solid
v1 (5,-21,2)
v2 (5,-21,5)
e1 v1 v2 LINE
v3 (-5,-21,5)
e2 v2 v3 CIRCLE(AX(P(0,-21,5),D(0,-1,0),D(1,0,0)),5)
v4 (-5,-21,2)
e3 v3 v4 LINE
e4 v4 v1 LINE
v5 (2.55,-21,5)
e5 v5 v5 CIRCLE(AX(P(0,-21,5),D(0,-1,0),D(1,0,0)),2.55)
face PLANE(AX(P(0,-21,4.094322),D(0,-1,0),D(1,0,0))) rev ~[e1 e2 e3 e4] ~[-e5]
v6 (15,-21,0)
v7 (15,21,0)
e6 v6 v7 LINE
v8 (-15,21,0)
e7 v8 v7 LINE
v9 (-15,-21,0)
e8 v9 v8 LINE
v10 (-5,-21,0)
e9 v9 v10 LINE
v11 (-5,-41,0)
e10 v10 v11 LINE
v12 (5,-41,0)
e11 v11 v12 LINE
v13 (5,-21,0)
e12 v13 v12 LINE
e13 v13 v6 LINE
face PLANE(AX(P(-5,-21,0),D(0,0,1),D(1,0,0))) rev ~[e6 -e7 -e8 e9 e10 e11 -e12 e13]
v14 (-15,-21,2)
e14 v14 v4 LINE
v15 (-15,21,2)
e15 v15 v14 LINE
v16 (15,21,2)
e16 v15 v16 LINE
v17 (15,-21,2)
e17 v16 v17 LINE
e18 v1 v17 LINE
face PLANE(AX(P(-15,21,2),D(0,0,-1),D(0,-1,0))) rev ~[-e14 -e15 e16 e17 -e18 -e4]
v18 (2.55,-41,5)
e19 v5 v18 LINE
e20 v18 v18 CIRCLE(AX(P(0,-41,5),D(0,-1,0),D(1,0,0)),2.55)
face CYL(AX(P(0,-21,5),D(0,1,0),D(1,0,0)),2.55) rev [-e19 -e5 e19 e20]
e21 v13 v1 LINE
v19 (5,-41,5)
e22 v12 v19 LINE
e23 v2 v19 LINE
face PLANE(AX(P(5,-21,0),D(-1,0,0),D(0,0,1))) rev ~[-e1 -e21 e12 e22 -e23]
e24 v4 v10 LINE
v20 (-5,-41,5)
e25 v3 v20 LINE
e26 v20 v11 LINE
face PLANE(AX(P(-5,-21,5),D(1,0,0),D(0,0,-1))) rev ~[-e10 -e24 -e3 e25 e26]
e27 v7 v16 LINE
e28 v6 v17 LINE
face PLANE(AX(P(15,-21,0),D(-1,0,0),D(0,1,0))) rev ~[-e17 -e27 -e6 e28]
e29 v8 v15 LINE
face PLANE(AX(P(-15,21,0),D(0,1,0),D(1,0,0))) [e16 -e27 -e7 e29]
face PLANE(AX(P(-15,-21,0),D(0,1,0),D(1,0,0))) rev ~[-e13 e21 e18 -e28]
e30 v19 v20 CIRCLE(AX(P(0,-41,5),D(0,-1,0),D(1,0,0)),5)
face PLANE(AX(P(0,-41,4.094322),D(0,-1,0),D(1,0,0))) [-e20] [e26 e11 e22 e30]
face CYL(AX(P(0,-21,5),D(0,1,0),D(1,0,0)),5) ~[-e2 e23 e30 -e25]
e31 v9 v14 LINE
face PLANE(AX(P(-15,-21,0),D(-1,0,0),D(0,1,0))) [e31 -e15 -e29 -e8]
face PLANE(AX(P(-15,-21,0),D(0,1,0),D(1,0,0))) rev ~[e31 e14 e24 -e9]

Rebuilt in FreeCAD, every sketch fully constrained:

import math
import FreeCAD as App
import Part
import Sketcher
from FreeCAD import Vector
Q = App.Units.Quantity

doc = App.newDocument("Part")
body = doc.addObject("PartDesign::Body", "Body")

# Sketch on XY plane
sketch1 = body.newObject("Sketcher::SketchObject", "Sketch")
sketch1.AttachmentSupport = (doc.getObject("XY_Plane"), [""])
sketch1.MapMode = "FlatFace"
sketch1.addGeometry([
    Part.LineSegment(Vector(-15, 21, 0), Vector(-15, -21, 0)),
    Part.LineSegment(Vector(-15, -21, 0), Vector(15, -21, 0)),
    Part.LineSegment(Vector(15, -21, 0), Vector(15, 21, 0)),
    Part.LineSegment(Vector(15, 21, 0), Vector(-15, 21, 0)),
], False)
sketch1.addConstraint([
    Sketcher.Constraint("Coincident", 0, 2, 1, 1),
    Sketcher.Constraint("Coincident", 1, 2, 2, 1),
    Sketcher.Constraint("Coincident", 2, 2, 3, 1),
    Sketcher.Constraint("Coincident", 3, 2, 0, 1),
    Sketcher.Constraint("Vertical", 0),
    Sketcher.Constraint("Horizontal", 1),
    Sketcher.Constraint("Vertical", 2),
    Sketcher.Constraint("Horizontal", 3),
    Sketcher.Constraint("Symmetric", 0, 2, 2, 2, -1, 1),
    Sketcher.Constraint("DistanceX", 1, 1, 1, 2, Q("30 mm")),
    Sketcher.Constraint("DistanceY", 0, 2, 0, 1, Q("42 mm")),
])
pad1 = body.newObject("PartDesign::Pad", "Pad")
pad1.Profile = sketch1
pad1.Length = 5

# Sketch on XZ plane
sketch2 = body.newObject("Sketcher::SketchObject", "Sketch001")
sketch2.AttachmentSupport = (doc.getObject("XZ_Plane"), [""])
sketch2.MapMode = "FlatFace"
sketch2.AttachmentOffset = App.Placement(Vector(0, 0, 21), App.Rotation())
sketch2.addGeometry([
    Part.ArcOfCircle(Part.Circle(Vector(0, 5, 0), Vector(0, 0, 1), 5), math.radians(0), math.radians(180)),  # 0
    Part.LineSegment(Vector(-5, 5, 0), Vector(-5, 0, 0)),  # 1
    Part.LineSegment(Vector(-5, 0, 0), Vector(5, 0, 0)),  # 2
    Part.LineSegment(Vector(5, 0, 0), Vector(5, 5, 0)),  # 3
    Part.Circle(Vector(0, 5, 0), Vector(0, 0, 1), 2.5),  # 4
], False)
sketch2.addConstraint([
    Sketcher.Constraint("Tangent", 0, 2, 1, 1),
    Sketcher.Constraint("Coincident", 1, 2, 2, 1),
    Sketcher.Constraint("Coincident", 2, 2, 3, 1),
    Sketcher.Constraint("Tangent", 3, 2, 0, 1),
    Sketcher.Constraint("Vertical", 1),
    Sketcher.Constraint("Horizontal", 2),
    Sketcher.Constraint("Vertical", 3),
    Sketcher.Constraint("Coincident", 4, 3, 0, 3),
    Sketcher.Constraint("Symmetric", 1, 2, 2, 2, -1, 1),
    Sketcher.Constraint("Radius", 0, Q("5 mm")),
    Sketcher.Constraint("Diameter", 4, Q("5.1 mm")),
    Sketcher.Constraint("DistanceY", 1, 2, 1, 1, Q("5 mm")),
])
pad2 = body.newObject("PartDesign::Pad", "Pad001")
pad2.Profile = sketch2
pad2.Length = 20

# Sketch on YZ plane
sketch3 = body.newObject("Sketcher::SketchObject", "Sketch002")
sketch3.AttachmentSupport = (doc.getObject("YZ_Plane"), [""])
sketch3.MapMode = "FlatFace"
sketch3.AttachmentOffset = App.Placement(Vector(0, 0, -15), App.Rotation())
sketch3.addGeometry([
    Part.LineSegment(Vector(21, 5, 0), Vector(21, 2, 0)),
    Part.LineSegment(Vector(21, 2, 0), Vector(-21, 2, 0)),
    Part.LineSegment(Vector(-21, 2, 0), Vector(-21, 5, 0)),
    Part.LineSegment(Vector(-21, 5, 0), Vector(21, 5, 0)),
], False)
sketch3.addConstraint([
    Sketcher.Constraint("Coincident", 0, 2, 1, 1),
    Sketcher.Constraint("Coincident", 1, 2, 2, 1),
    Sketcher.Constraint("Coincident", 2, 2, 3, 1),
    Sketcher.Constraint("Coincident", 3, 2, 0, 1),
    Sketcher.Constraint("Vertical", 0),
    Sketcher.Constraint("Horizontal", 1),
    Sketcher.Constraint("Vertical", 2),
    Sketcher.Constraint("Horizontal", 3),
    Sketcher.Constraint("DistanceX", 1, 2, 1, 1, Q("42 mm")),
    Sketcher.Constraint("DistanceY", 0, 2, 0, 1, Q("3 mm")),
    Sketcher.Constraint("DistanceX", -1, 1, 0, 2, Q("21 mm")),
    Sketcher.Constraint("DistanceY", -1, 1, 0, 2, Q("2 mm")),
])
pocket1 = body.newObject("PartDesign::Pocket", "Pocket")
pocket1.Profile = sketch3
pocket1.Type = "ThroughAll"
pocket1.Reversed = True

doc.recompute()
